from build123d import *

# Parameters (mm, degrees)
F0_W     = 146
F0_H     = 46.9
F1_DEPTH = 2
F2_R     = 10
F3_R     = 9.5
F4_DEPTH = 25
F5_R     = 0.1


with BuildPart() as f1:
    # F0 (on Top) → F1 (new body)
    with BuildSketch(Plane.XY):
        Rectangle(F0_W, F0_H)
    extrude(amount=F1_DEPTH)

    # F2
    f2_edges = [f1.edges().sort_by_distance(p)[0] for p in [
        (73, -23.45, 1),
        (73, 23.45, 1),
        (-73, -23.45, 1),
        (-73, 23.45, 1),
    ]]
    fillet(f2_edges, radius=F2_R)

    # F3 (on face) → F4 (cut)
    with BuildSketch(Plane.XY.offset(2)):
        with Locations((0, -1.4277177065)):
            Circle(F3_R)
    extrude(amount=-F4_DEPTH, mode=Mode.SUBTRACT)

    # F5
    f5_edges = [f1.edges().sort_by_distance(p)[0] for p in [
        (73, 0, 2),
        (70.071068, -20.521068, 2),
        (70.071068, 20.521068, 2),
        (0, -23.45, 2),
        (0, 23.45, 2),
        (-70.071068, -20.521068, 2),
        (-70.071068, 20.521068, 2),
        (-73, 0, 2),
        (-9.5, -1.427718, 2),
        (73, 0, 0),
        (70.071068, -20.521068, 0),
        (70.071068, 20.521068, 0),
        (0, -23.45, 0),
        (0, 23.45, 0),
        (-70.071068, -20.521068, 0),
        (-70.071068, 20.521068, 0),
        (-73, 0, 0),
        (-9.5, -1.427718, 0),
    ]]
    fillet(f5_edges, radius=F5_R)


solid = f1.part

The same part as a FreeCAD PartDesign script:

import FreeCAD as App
import Part
import Sketcher

V = App.Vector


def edges_at(feature, points):
    """Names of the edges that pass closest to the given points."""
    edges = feature.Shape.Edges
    near = lambda p: min(range(len(edges)), key=lambda i: edges[i].distToShape(Part.Vertex(*p))[0])
    return sorted({f"Edge{near(p) + 1}" for p in points})

doc = App.newDocument("Part")
body = doc.addObject("PartDesign::Body", "Body")

sketch1 = body.newObject("Sketcher::SketchObject", "Sketch")
sketch1.AttachmentSupport = (doc.getObject("XY_Plane"), [""])
sketch1.MapMode = "FlatFace"
sketch1.addGeometry([
    Part.LineSegment(V(-73, 23, 0), V(-73, -23, 0)),
    Part.LineSegment(V(-73, -23, 0), V(73, -23, 0)),
    Part.LineSegment(V(73, -23, 0), V(73, 23, 0)),
    Part.LineSegment(V(73, 23, 0), V(-73, 23, 0)),
], False)
sketch1.addConstraint([
    Sketcher.Constraint("Coincident", 0, 2, 1, 1),
    Sketcher.Constraint("Coincident", 1, 2, 2, 1),
    Sketcher.Constraint("Coincident", 2, 2, 3, 1),
    Sketcher.Constraint("Coincident", 3, 2, 0, 1),
    Sketcher.Constraint("Vertical", 0),
    Sketcher.Constraint("Horizontal", 1),
    Sketcher.Constraint("Vertical", 2),
    Sketcher.Constraint("Horizontal", 3),
    Sketcher.Constraint("Symmetric", 0, 2, 2, 2, -1, 1),
    Sketcher.Constraint("DistanceX", 1, 1, 1, 2, 146.0),
    Sketcher.Constraint("DistanceY", 0, 2, 0, 1, 46.9),
])
pad1 = body.newObject("PartDesign::Pad", "Pad")
pad1.Profile = sketch1
pad1.Length = 2
doc.recompute()

fillet = body.newObject("PartDesign::Fillet", "Fillet")
fillet.Base = (pad1, edges_at(pad1, [
    (73, -23.45, 1),
    (73, 23.45, 1),
    (-73, -23.45, 1),
    (-73, 23.45, 1),
]))
fillet.Radius = 10

sketch2 = body.newObject("Sketcher::SketchObject", "Sketch001")
sketch2.AttachmentSupport = (doc.getObject("XY_Plane"), [""])
sketch2.MapMode = "FlatFace"
sketch2.AttachmentOffset = App.Placement(V(0, 0, 2), App.Rotation())
sketch2.addGeometry(Part.Circle(V(0, -1, 0), V(0, 0, 1), 10), False)
sketch2.addConstraint([
    Sketcher.Constraint("PointOnObject", 0, 3, -2),
    Sketcher.Constraint("Diameter", 0, 19.0),
    Sketcher.Constraint("DistanceY", 0, 3, -1, 1, 1.427718),
])
pocket1 = body.newObject("PartDesign::Pocket", "Pocket")
pocket1.Profile = sketch2
pocket1.Length = 25
doc.recompute()

fillet2 = body.newObject("PartDesign::Fillet", "Fillet001")
fillet2.Base = (pocket1, edges_at(pocket1, [
    (73, 0, 2),
    (70.071, -20.521, 2),
    (70.071, 20.521, 2),
    (0, -23.45, 2),
    (0, 23.45, 2),
    (-70.071, -20.521, 2),
    (-70.071, 20.521, 2),
    (-73, 0, 2),
    (-9.5, -1.428, 2),
    (73, 0, 0),
    (70.071, -20.521, 0),
    (70.071, 20.521, 0),
    (0, -23.45, 0),
    (0, 23.45, 0),
    (-70.071, -20.521, 0),
    (-70.071, 20.521, 0),
    (-73, 0, 0),
    (-9.5, -1.428, 0),
]))
fillet2.Radius = 0.1

doc.recompute()
